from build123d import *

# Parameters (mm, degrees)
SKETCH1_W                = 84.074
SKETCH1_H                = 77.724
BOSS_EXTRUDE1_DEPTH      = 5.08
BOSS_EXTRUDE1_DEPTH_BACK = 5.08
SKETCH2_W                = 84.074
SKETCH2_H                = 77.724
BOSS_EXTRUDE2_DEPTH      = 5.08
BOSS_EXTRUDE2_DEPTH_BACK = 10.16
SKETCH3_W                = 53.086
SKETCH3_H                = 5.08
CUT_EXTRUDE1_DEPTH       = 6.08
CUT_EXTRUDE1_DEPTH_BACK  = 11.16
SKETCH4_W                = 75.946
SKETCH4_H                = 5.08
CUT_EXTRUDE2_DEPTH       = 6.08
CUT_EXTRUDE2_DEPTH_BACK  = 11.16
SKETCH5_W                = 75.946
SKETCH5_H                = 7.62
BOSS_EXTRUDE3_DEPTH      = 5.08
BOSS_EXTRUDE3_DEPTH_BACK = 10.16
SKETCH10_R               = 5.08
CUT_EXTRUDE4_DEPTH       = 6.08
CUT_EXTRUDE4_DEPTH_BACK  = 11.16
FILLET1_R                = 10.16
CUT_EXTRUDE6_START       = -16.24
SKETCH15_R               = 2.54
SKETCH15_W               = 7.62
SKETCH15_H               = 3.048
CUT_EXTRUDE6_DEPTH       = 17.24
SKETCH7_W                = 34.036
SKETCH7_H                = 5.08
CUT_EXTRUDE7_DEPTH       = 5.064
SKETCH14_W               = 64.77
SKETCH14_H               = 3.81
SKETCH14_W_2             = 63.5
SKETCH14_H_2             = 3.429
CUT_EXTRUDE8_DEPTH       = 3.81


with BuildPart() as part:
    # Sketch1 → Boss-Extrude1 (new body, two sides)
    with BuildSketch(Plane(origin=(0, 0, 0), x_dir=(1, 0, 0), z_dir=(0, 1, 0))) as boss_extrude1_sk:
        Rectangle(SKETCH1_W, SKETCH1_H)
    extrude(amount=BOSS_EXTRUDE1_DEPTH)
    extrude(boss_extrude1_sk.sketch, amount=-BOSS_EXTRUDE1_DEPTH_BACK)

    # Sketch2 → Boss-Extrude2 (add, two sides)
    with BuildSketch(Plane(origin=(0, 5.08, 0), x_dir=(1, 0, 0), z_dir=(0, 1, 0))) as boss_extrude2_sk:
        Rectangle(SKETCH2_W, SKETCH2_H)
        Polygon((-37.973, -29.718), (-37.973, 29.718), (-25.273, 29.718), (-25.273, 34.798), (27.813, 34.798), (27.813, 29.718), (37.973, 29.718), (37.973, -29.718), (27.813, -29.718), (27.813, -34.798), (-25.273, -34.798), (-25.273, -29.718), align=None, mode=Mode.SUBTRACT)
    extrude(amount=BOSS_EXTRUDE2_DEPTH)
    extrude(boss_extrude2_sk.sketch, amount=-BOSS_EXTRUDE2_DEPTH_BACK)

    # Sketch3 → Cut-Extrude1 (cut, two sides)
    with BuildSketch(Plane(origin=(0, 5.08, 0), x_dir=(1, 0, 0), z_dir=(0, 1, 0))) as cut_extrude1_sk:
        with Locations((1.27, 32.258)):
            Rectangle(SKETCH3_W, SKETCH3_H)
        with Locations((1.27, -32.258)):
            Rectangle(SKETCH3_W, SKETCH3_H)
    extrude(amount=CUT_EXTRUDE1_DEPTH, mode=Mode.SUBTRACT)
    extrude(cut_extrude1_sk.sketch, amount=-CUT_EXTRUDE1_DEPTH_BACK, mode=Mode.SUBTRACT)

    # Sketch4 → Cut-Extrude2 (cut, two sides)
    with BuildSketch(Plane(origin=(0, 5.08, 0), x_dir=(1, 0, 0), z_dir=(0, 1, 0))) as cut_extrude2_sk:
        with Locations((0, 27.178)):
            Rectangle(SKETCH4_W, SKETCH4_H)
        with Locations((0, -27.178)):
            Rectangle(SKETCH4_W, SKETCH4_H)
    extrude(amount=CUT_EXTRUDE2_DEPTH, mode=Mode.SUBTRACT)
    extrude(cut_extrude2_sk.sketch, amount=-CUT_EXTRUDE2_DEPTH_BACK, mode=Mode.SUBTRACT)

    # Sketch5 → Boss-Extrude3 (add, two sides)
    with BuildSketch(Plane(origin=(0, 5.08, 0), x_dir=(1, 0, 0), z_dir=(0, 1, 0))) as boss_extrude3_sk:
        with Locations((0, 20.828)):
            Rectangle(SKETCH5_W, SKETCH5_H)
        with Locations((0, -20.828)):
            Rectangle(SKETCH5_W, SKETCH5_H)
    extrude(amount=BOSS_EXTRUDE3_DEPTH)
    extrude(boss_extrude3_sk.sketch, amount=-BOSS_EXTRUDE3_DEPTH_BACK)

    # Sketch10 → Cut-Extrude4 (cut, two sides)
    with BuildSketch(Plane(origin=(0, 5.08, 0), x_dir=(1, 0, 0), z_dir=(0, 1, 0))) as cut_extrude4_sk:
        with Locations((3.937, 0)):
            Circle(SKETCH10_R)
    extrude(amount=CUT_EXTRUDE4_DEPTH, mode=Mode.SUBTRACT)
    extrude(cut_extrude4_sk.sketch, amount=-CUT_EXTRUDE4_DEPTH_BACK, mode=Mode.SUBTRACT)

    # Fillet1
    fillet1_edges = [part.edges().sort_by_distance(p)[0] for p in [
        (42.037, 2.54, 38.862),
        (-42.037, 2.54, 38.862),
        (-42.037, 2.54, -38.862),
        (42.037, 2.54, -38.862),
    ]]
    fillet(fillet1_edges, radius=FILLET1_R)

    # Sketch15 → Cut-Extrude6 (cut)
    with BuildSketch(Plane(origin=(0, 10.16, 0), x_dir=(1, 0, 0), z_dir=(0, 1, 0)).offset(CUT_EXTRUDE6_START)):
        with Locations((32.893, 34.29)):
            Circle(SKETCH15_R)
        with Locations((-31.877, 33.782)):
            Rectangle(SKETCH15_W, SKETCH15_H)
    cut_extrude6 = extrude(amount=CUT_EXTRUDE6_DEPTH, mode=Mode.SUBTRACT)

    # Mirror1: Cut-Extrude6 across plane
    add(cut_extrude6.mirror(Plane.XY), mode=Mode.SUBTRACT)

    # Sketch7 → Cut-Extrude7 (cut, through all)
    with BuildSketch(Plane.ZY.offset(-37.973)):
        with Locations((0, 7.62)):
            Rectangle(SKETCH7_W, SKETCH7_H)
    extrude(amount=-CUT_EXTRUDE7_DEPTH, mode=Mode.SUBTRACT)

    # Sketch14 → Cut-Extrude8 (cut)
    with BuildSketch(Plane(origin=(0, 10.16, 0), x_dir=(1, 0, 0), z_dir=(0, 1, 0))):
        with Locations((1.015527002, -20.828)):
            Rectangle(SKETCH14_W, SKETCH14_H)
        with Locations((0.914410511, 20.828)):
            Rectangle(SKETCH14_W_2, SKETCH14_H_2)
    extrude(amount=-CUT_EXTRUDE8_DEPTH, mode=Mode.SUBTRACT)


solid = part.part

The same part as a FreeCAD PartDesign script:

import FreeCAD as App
import Part
import Sketcher
from FreeCAD import Vector
Q = App.Units.Quantity


def edges_at(feature, points):
    """Names of the edges that pass closest to the given points."""
    edges = feature.Shape.Edges
    near = lambda p: min(range(len(edges)), key=lambda i: edges[i].distToShape(Part.Vertex(*p))[0])
    return sorted({f"Edge{near(p) + 1}" for p in points})

doc = App.newDocument("Part")
body = doc.addObject("PartDesign::Body", "Body")

# Sketch on XZ plane
sketch1 = body.newObject("Sketcher::SketchObject", "Sketch")
sketch1.AttachmentSupport = (doc.getObject("XZ_Plane"), [""])
sketch1.MapMode = "FlatFace"
sketch1.addGeometry(Part.LineSegment(Vector(-42, -39, 0), Vector(-42, 39, 0)), False)
sketch1.addGeometry(Part.LineSegment(Vector(-42, 39, 0), Vector(42, 39, 0)), False)
sketch1.addGeometry(Part.LineSegment(Vector(42, 39, 0), Vector(42, -39, 0)), False)
sketch1.addGeometry(Part.LineSegment(Vector(42, -39, 0), Vector(-42, -39, 0)), False)
sketch1.addConstraint(Sketcher.Constraint("Coincident", 0, 2, 1, 1))
sketch1.addConstraint(Sketcher.Constraint("Coincident", 1, 2, 2, 1))
sketch1.addConstraint(Sketcher.Constraint("Coincident", 2, 2, 3, 1))
sketch1.addConstraint(Sketcher.Constraint("Coincident", 3, 2, 0, 1))
sketch1.addConstraint(Sketcher.Constraint("Vertical", 0))
sketch1.addConstraint(Sketcher.Constraint("Horizontal", 1))
sketch1.addConstraint(Sketcher.Constraint("Vertical", 2))
sketch1.addConstraint(Sketcher.Constraint("Horizontal", 3))
sketch1.addConstraint(Sketcher.Constraint("Symmetric", 0, 2, 2, 2, -1, 1))
sketch1.addConstraint(Sketcher.Constraint("DistanceX", 1, 1, 1, 2, Q("3.31 in")))
sketch1.addConstraint(Sketcher.Constraint("DistanceY", 0, 1, 0, 2, Q("3.06 in")))
pad1 = body.newObject("PartDesign::Pad", "Pad")
pad1.Profile = sketch1
pad1.Type = "TwoLengths"
pad1.Length = Q("0.2 in")
pad1.Length2 = Q("0.2 in")
pad1.Reversed = True

# Sketch on XZ plane
sketch2 = body.newObject("Sketcher::SketchObject", "Sketch001")
sketch2.AttachmentSupport = (doc.getObject("XZ_Plane"), [""])
sketch2.MapMode = "FlatFace"
sketch2.AttachmentOffset = App.Placement(Vector(0, 0, -0.2 * 25.4), App.Rotation())
sketch2.addGeometry(Part.LineSegment(Vector(-42, -39, 0), Vector(-42, 39, 0)), False)
sketch2.addGeometry(Part.LineSegment(Vector(-42, 39, 0), Vector(42, 39, 0)), False)
sketch2.addGeometry(Part.LineSegment(Vector(42, 39, 0), Vector(42, -39, 0)), False)
sketch2.addGeometry(Part.LineSegment(Vector(42, -39, 0), Vector(-42, -39, 0)), False)
sketch2.addGeometry(Part.LineSegment(Vector(-25, 30, 0), Vector(-38, 30, 0)), False)
sketch2.addGeometry(Part.LineSegment(Vector(-38, 30, 0), Vector(-38, -30, 0)), False)
sketch2.addGeometry(Part.LineSegment(Vector(-38, -30, 0), Vector(-25, -30, 0)), False)
sketch2.addGeometry(Part.LineSegment(Vector(-25, -30, 0), Vector(-25, -35, 0)), False)
sketch2.addGeometry(Part.LineSegment(Vector(-25, -35, 0), Vector(28, -35, 0)), False)
sketch2.addGeometry(Part.LineSegment(Vector(28, -35, 0), Vector(28, -30, 0)), False)
sketch2.addGeometry(Part.LineSegment(Vector(28, -30, 0), Vector(38, -30, 0)), False)
sketch2.addGeometry(Part.LineSegment(Vector(38, -30, 0), Vector(38, 30, 0)), False)
sketch2.addGeometry(Part.LineSegment(Vector(38, 30, 0), Vector(28, 30, 0)), False)
sketch2.addGeometry(Part.LineSegment(Vector(28, 30, 0), Vector(28, 35, 0)), False)
sketch2.addGeometry(Part.LineSegment(Vector(28, 35, 0), Vector(-25, 35, 0)), False)
sketch2.addGeometry(Part.LineSegment(Vector(-25, 35, 0), Vector(-25, 30, 0)), False)
sketch2.addConstraint(Sketcher.Constraint("Coincident", 0, 2, 1, 1))
sketch2.addConstraint(Sketcher.Constraint("Coincident", 1, 2, 2, 1))
sketch2.addConstraint(Sketcher.Constraint("Coincident", 2, 2, 3, 1))
sketch2.addConstraint(Sketcher.Constraint("Coincident", 3, 2, 0, 1))
sketch2.addConstraint(Sketcher.Constraint("Coincident", 4, 2, 5, 1))
sketch2.addConstraint(Sketcher.Constraint("Coincident", 5, 2, 6, 1))
sketch2.addConstraint(Sketcher.Constraint("Coincident", 6, 2, 7, 1))
sketch2.addConstraint(Sketcher.Constraint("Coincident", 7, 2, 8, 1))
sketch2.addConstraint(Sketcher.Constraint("Coincident", 8, 2, 9, 1))
sketch2.addConstraint(Sketcher.Constraint("Coincident", 9, 2, 10, 1))
sketch2.addConstraint(Sketcher.Constraint("Coincident", 10, 2, 11, 1))
sketch2.addConstraint(Sketcher.Constraint("Coincident", 11, 2, 12, 1))
sketch2.addConstraint(Sketcher.Constraint("Coincident", 12, 2, 13, 1))
sketch2.addConstraint(Sketcher.Constraint("Coincident", 13, 2, 14, 1))
sketch2.addConstraint(Sketcher.Constraint("Coincident", 14, 2, 15, 1))
sketch2.addConstraint(Sketcher.Constraint("Coincident", 15, 2, 4, 1))
sketch2.addConstraint(Sketcher.Constraint("Vertical", 0))
sketch2.addConstraint(Sketcher.Constraint("Horizontal", 1))
sketch2.addConstraint(Sketcher.Constraint("Vertical", 2))
sketch2.addConstraint(Sketcher.Constraint("Horizontal", 3))
sketch2.addConstraint(Sketcher.Constraint("Horizontal", 4))
sketch2.addConstraint(Sketcher.Constraint("Vertical", 5))
sketch2.addConstraint(Sketcher.Constraint("Horizontal", 6))
sketch2.addConstraint(Sketcher.Constraint("Vertical", 7))
sketch2.addConstraint(Sketcher.Constraint("Horizontal", 8))
sketch2.addConstraint(Sketcher.Constraint("Vertical", 9))
sketch2.addConstraint(Sketcher.Constraint("Horizontal", 10))
sketch2.addConstraint(Sketcher.Constraint("Vertical", 11))
sketch2.addConstraint(Sketcher.Constraint("Horizontal", 12))
sketch2.addConstraint(Sketcher.Constraint("Vertical", 13))
sketch2.addConstraint(Sketcher.Constraint("Horizontal", 14))
sketch2.addConstraint(Sketcher.Constraint("Vertical", 15))
sketch2.addConstraint(Sketcher.Constraint("Symmetric", 0, 2, 2, 2, -1, 1))
sketch2.addConstraint(Sketcher.Constraint("Symmetric", 4, 2, 10, 2, -1, 1))
sketch2.addConstraint(Sketcher.Constraint("Symmetric", 9, 2, 12, 2, -1))
sketch2.addConstraint(Sketcher.Constraint("Symmetric", 7, 2, 14, 2, -1))
sketch2.addConstraint(Sketcher.Constraint("Horizontal", 6, 2, 9, 2))
sketch2.addConstraint(Sketcher.Constraint("DistanceX", 4, 2, 4, 1, Q("0.5 in")))
sketch2.addConstraint(Sketcher.Constraint("DistanceX", 10, 1, 10, 2, Q("0.4 in")))
sketch2.addConstraint(Sketcher.Constraint("DistanceY", 7, 2, 7, 1, Q("0.2 in")))
sketch2.addConstraint(Sketcher.Constraint("DistanceX", 1, 1, 1, 2, Q("3.31 in")))
sketch2.addConstraint(Sketcher.Constraint("DistanceX", 8, 1, 8, 2, Q("2.09 in")))
sketch2.addConstraint(Sketcher.Constraint("DistanceY", 0, 1, 0, 2, Q("3.06 in")))
sketch2.addConstraint(Sketcher.Constraint("DistanceY", 5, 2, 5, 1, Q("2.34 in")))
pad2 = body.newObject("PartDesign::Pad", "Pad001")
pad2.Profile = sketch2
pad2.Type = "TwoLengths"
pad2.Length = Q("0.2 in")
pad2.Length2 = Q("0.4 in")
pad2.Reversed = True

# Sketch on XZ plane
sketch3 = body.newObject("Sketcher::SketchObject", "Sketch002")
sketch3.AttachmentSupport = (doc.getObject("XZ_Plane"), [""])
sketch3.MapMode = "FlatFace"
sketch3.AttachmentOffset = App.Placement(Vector(0, 0, -0.2 * 25.4), App.Rotation())
sketch3.addGeometry(Part.LineSegment(Vector(-25, -35, 0), Vector(-25, -30, 0)), False)
sketch3.addGeometry(Part.LineSegment(Vector(-25, -30, 0), Vector(28, -30, 0)), False)
sketch3.addGeometry(Part.LineSegment(Vector(28, -30, 0), Vector(28, -35, 0)), False)
sketch3.addGeometry(Part.LineSegment(Vector(28, -35, 0), Vector(-25, -35, 0)), False)
sketch3.addGeometry(Part.LineSegment(Vector(-25, 30, 0), Vector(-25, 35, 0)), False)
sketch3.addGeometry(Part.LineSegment(Vector(-25, 35, 0), Vector(28, 35, 0)), False)
sketch3.addGeometry(Part.LineSegment(Vector(28, 35, 0), Vector(28, 30, 0)), False)
sketch3.addGeometry(Part.LineSegment(Vector(28, 30, 0), Vector(-25, 30, 0)), False)
sketch3.addConstraint(Sketcher.Constraint("Coincident", 0, 2, 1, 1))
sketch3.addConstraint(Sketcher.Constraint("Coincident", 1, 2, 2, 1))
sketch3.addConstraint(Sketcher.Constraint("Coincident", 2, 2, 3, 1))
sketch3.addConstraint(Sketcher.Constraint("Coincident", 3, 2, 0, 1))
sketch3.addConstraint(Sketcher.Constraint("Coincident", 4, 2, 5, 1))
sketch3.addConstraint(Sketcher.Constraint("Coincident", 5, 2, 6, 1))
sketch3.addConstraint(Sketcher.Constraint("Coincident", 6, 2, 7, 1))
sketch3.addConstraint(Sketcher.Constraint("Coincident", 7, 2, 4, 1))
sketch3.addConstraint(Sketcher.Constraint("Vertical", 0))
sketch3.addConstraint(Sketcher.Constraint("Horizontal", 1))
sketch3.addConstraint(Sketcher.Constraint("Vertical", 2))
sketch3.addConstraint(Sketcher.Constraint("Horizontal", 3))
sketch3.addConstraint(Sketcher.Constraint("Vertical", 4))
sketch3.addConstraint(Sketcher.Constraint("Horizontal", 5))
sketch3.addConstraint(Sketcher.Constraint("Vertical", 6))
sketch3.addConstraint(Sketcher.Constraint("Horizontal", 7))
sketch3.addConstraint(Sketcher.Constraint("Symmetric", 3, 2, 4, 2, -1))
sketch3.addConstraint(Sketcher.Constraint("Symmetric", 1, 2, 6, 2, -1))
sketch3.addConstraint(Sketcher.Constraint("DistanceY", 0, 1, 0, 2, Q("0.2 in")))
sketch3.addConstraint(Sketcher.Constraint("DistanceX", 1, 1, 1, 2, Q("2.09 in")))
sketch3.addConstraint(Sketcher.Constraint("DistanceY", 0, 2, -1, 1, Q("1.17 in")))
sketch3.addConstraint(Sketcher.Constraint("DistanceX", 0, 2, -1, 1, Q("0.995 in")))
pocket1 = body.newObject("PartDesign::Pocket", "Pocket")
pocket1.Profile = sketch3
pocket1.Type = "ThroughAll"
pocket1.Midplane = True

# Sketch on XZ plane
sketch4 = body.newObject("Sketcher::SketchObject", "Sketch003")
sketch4.AttachmentSupport = (doc.getObject("XZ_Plane"), [""])
sketch4.MapMode = "FlatFace"
sketch4.AttachmentOffset = App.Placement(Vector(0, 0, -0.2 * 25.4), App.Rotation())
sketch4.addGeometry(Part.LineSegment(Vector(-38, -30, 0), Vector(-38, -25, 0)), False)
sketch4.addGeometry(Part.LineSegment(Vector(-38, -25, 0), Vector(38, -25, 0)), False)
sketch4.addGeometry(Part.LineSegment(Vector(38, -25, 0), Vector(38, -30, 0)), False)
sketch4.addGeometry(Part.LineSegment(Vector(38, -30, 0), Vector(-38, -30, 0)), False)
sketch4.addGeometry(Part.LineSegment(Vector(-38, 25, 0), Vector(-38, 30, 0)), False)
sketch4.addGeometry(Part.LineSegment(Vector(-38, 30, 0), Vector(38, 30, 0)), False)
sketch4.addGeometry(Part.LineSegment(Vector(38, 30, 0), Vector(38, 25, 0)), False)
sketch4.addGeometry(Part.LineSegment(Vector(38, 25, 0), Vector(-38, 25, 0)), False)
sketch4.addConstraint(Sketcher.Constraint("Coincident", 0, 2, 1, 1))
sketch4.addConstraint(Sketcher.Constraint("Coincident", 1, 2, 2, 1))
sketch4.addConstraint(Sketcher.Constraint("Coincident", 2, 2, 3, 1))
sketch4.addConstraint(Sketcher.Constraint("Coincident", 3, 2, 0, 1))
sketch4.addConstraint(Sketcher.Constraint("Coincident", 4, 2, 5, 1))
sketch4.addConstraint(Sketcher.Constraint("Coincident", 5, 2, 6, 1))
sketch4.addConstraint(Sketcher.Constraint("Coincident", 6, 2, 7, 1))
sketch4.addConstraint(Sketcher.Constraint("Coincident", 7, 2, 4, 1))
sketch4.addConstraint(Sketcher.Constraint("Vertical", 0))
sketch4.addConstraint(Sketcher.Constraint("Horizontal", 1))
sketch4.addConstraint(Sketcher.Constraint("Vertical", 2))
sketch4.addConstraint(Sketcher.Constraint("Horizontal", 3))
sketch4.addConstraint(Sketcher.Constraint("Vertical", 4))
sketch4.addConstraint(Sketcher.Constraint("Horizontal", 5))
sketch4.addConstraint(Sketcher.Constraint("Vertical", 6))
sketch4.addConstraint(Sketcher.Constraint("Horizontal", 7))
sketch4.addConstraint(Sketcher.Constraint("Symmetric", 2, 2, 4, 2, -1, 1))
sketch4.addConstraint(Sketcher.Constraint("Symmetric", 0, 2, 6, 2, -1, 1))
sketch4.addConstraint(Sketcher.Constraint("Vertical", 3, 2, 4, 2))
sketch4.addConstraint(Sketcher.Constraint("DistanceY", 0, 1, 0, 2, Q("0.2 in")))
sketch4.addConstraint(Sketcher.Constraint("DistanceX", 1, 1, 1, 2, Q("2.99 in")))
sketch4.addConstraint(Sketcher.Constraint("DistanceY", 0, 2, -1, 1, Q("0.97 in")))
pocket2 = body.newObject("PartDesign::Pocket", "Pocket001")
pocket2.Profile = sketch4
pocket2.Type = "ThroughAll"
pocket2.Midplane = True

# Sketch on XZ plane
sketch5 = body.newObject("Sketcher::SketchObject", "Sketch004")
sketch5.AttachmentSupport = (doc.getObject("XZ_Plane"), [""])
sketch5.MapMode = "FlatFace"
sketch5.AttachmentOffset = App.Placement(Vector(0, 0, -0.2 * 25.4), App.Rotation())
sketch5.addGeometry(Part.LineSegment(Vector(-38, -25, 0), Vector(-38, -17, 0)), False)
sketch5.addGeometry(Part.LineSegment(Vector(-38, -17, 0), Vector(38, -17, 0)), False)
sketch5.addGeometry(Part.LineSegment(Vector(38, -17, 0), Vector(38, -25, 0)), False)
sketch5.addGeometry(Part.LineSegment(Vector(38, -25, 0), Vector(-38, -25, 0)), False)
sketch5.addGeometry(Part.LineSegment(Vector(-38, 17, 0), Vector(-38, 25, 0)), False)
sketch5.addGeometry(Part.LineSegment(Vector(-38, 25, 0), Vector(38, 25, 0)), False)
sketch5.addGeometry(Part.LineSegment(Vector(38, 25, 0), Vector(38, 17, 0)), False)
sketch5.addGeometry(Part.LineSegment(Vector(38, 17, 0), Vector(-38, 17, 0)), False)
sketch5.addConstraint(Sketcher.Constraint("Coincident", 0, 2, 1, 1))
sketch5.addConstraint(Sketcher.Constraint("Coincident", 1, 2, 2, 1))
sketch5.addConstraint(Sketcher.Constraint("Coincident", 2, 2, 3, 1))
sketch5.addConstraint(Sketcher.Constraint("Coincident", 3, 2, 0, 1))
sketch5.addConstraint(Sketcher.Constraint("Coincident", 4, 2, 5, 1))
sketch5.addConstraint(Sketcher.Constraint("Coincident", 5, 2, 6, 1))
sketch5.addConstraint(Sketcher.Constraint("Coincident", 6, 2, 7, 1))
sketch5.addConstraint(Sketcher.Constraint("Coincident", 7, 2, 4, 1))
sketch5.addConstraint(Sketcher.Constraint("Vertical", 0))
sketch5.addConstraint(Sketcher.Constraint("Horizontal", 1))
sketch5.addConstraint(Sketcher.Constraint("Vertical", 2))
sketch5.addConstraint(Sketcher.Constraint("Horizontal", 3))
sketch5.addConstraint(Sketcher.Constraint("Vertical", 4))
sketch5.addConstraint(Sketcher.Constraint("Horizontal", 5))
sketch5.addConstraint(Sketcher.Constraint("Vertical", 6))
sketch5.addConstraint(Sketcher.Constraint("Horizontal", 7))
sketch5.addConstraint(Sketcher.Constraint("Symmetric", 2, 2, 4, 2, -1, 1))
sketch5.addConstraint(Sketcher.Constraint("Symmetric", 0, 2, 6, 2, -1, 1))
sketch5.addConstraint(Sketcher.Constraint("Vertical", 3, 2, 4, 2))
sketch5.addConstraint(Sketcher.Constraint("DistanceY", 0, 1, 0, 2, Q("0.3 in")))
sketch5.addConstraint(Sketcher.Constraint("DistanceX", 1, 1, 1, 2, Q("2.99 in")))
sketch5.addConstraint(Sketcher.Constraint("DistanceY", 0, 2, -1, 1, Q("0.67 in")))
pad3 = body.newObject("PartDesign::Pad", "Pad002")
pad3.Profile = sketch5
pad3.Type = "TwoLengths"
pad3.Length = Q("0.2 in")
pad3.Length2 = Q("0.4 in")
pad3.Reversed = True

# Sketch on XZ plane
sketch6 = body.newObject("Sketcher::SketchObject", "Sketch005")
sketch6.AttachmentSupport = (doc.getObject("XZ_Plane"), [""])
sketch6.MapMode = "FlatFace"
sketch6.AttachmentOffset = App.Placement(Vector(0, 0, -0.2 * 25.4), App.Rotation())
sketch6.addGeometry(Part.Circle(Vector(4, 0, 0), Vector(0, 0, 1), 5), False)
sketch6.addConstraint(Sketcher.Constraint("PointOnObject", 0, 3, -1))
sketch6.addConstraint(Sketcher.Constraint("Diameter", 0, Q("0.4 in")))
sketch6.addConstraint(Sketcher.Constraint("DistanceX", -1, 1, 0, 3, Q("0.155 in")))
pocket3 = body.newObject("PartDesign::Pocket", "Pocket002")
pocket3.Profile = sketch6
pocket3.Type = "ThroughAll"
pocket3.Midplane = True
doc.recompute()

fillet = body.newObject("PartDesign::Fillet", "Fillet")
fillet.Base = (pocket3, edges_at(pocket3, [
    (42.037, 2.54, 38.862),
    (-42.037, 2.54, 38.862),
    (-42.037, 2.54, -38.862),
    (42.037, 2.54, -38.862),
]))
fillet.Radius = Q("0.4 in")

# Sketch on XZ plane
sketch7 = body.newObject("Sketcher::SketchObject", "Sketch006")
sketch7.AttachmentSupport = (doc.getObject("XZ_Plane"), [""])
sketch7.MapMode = "FlatFace"
sketch7.AttachmentOffset = App.Placement(Vector(0, 0, 6.08), App.Rotation())
sketch7.addGeometry(Part.Circle(Vector(32.9, -34.3, 0), Vector(0, 0, 1), 2.5), False)
sketch7.addGeometry(Part.LineSegment(Vector(-35.7, -35.3, 0), Vector(-35.7, -32.3, 0)), False)
sketch7.addGeometry(Part.LineSegment(Vector(-35.7, -32.3, 0), Vector(-28.1, -32.3, 0)), False)
sketch7.addGeometry(Part.LineSegment(Vector(-28.1, -32.3, 0), Vector(-28.1, -35.3, 0)), False)
sketch7.addGeometry(Part.LineSegment(Vector(-28.1, -35.3, 0), Vector(-35.7, -35.3, 0)), False)
sketch7.addConstraint(Sketcher.Constraint("Coincident", 1, 2, 2, 1))
sketch7.addConstraint(Sketcher.Constraint("Coincident", 2, 2, 3, 1))
sketch7.addConstraint(Sketcher.Constraint("Coincident", 3, 2, 4, 1))
sketch7.addConstraint(Sketcher.Constraint("Coincident", 4, 2, 1, 1))
sketch7.addConstraint(Sketcher.Constraint("Vertical", 1))
sketch7.addConstraint(Sketcher.Constraint("Horizontal", 2))
sketch7.addConstraint(Sketcher.Constraint("Vertical", 3))
sketch7.addConstraint(Sketcher.Constraint("Horizontal", 4))
sketch7.addConstraint(Sketcher.Constraint("Diameter", 0, Q("0.2 in")))
sketch7.addConstraint(Sketcher.Constraint("DistanceX", 2, 1, 2, 2, Q("0.3 in")))
sketch7.addConstraint(Sketcher.Constraint("DistanceY", 1, 1, 1, 2, Q("0.12 in")))
sketch7.addConstraint(Sketcher.Constraint("DistanceX", 1, 2, 0, 3, Q("2.7 in")))
sketch7.addConstraint(Sketcher.Constraint("DistanceY", 0, 3, -1, 1, Q("1.35 in")))
sketch7.addConstraint(Sketcher.Constraint("DistanceY", 1, 2, -1, 1, Q("1.27 in")))
sketch7.addConstraint(Sketcher.Constraint("DistanceX", -1, 1, 0, 3, Q("1.295 in")))
pocket4 = body.newObject("PartDesign::Pocket", "Pocket003")
pocket4.Profile = sketch7
pocket4.Length = 17.24
doc.recompute()

mirrored = body.newObject("PartDesign::Mirrored", "Mirrored")
mirrored.Originals = [pocket4]
mirrored.MirrorPlane = (doc.getObject("XY_Plane"), [""])
body.Tip = mirrored

# Sketch on YZ plane
sketch8 = body.newObject("Sketcher::SketchObject", "Sketch007")
sketch8.AttachmentSupport = (doc.getObject("YZ_Plane"), [""])
sketch8.MapMode = "FlatFace"
sketch8.AttachmentOffset = App.Placement(Vector(0, 0, 1.495 * 25.4), App.Rotation())
sketch8.addGeometry(Part.LineSegment(Vector(10, -17, 0), Vector(5, -17, 0)), False)
sketch8.addGeometry(Part.LineSegment(Vector(5, -17, 0), Vector(5, 17, 0)), False)
sketch8.addGeometry(Part.LineSegment(Vector(5, 17, 0), Vector(10, 17, 0)), False)
sketch8.addGeometry(Part.LineSegment(Vector(10, 17, 0), Vector(10, -17, 0)), False)
sketch8.addConstraint(Sketcher.Constraint("Coincident", 0, 2, 1, 1))
sketch8.addConstraint(Sketcher.Constraint("Coincident", 1, 2, 2, 1))
sketch8.addConstraint(Sketcher.Constraint("Coincident", 2, 2, 3, 1))
sketch8.addConstraint(Sketcher.Constraint("Coincident", 3, 2, 0, 1))
sketch8.addConstraint(Sketcher.Constraint("Horizontal", 0))
sketch8.addConstraint(Sketcher.Constraint("Vertical", 1))
sketch8.addConstraint(Sketcher.Constraint("Horizontal", 2))
sketch8.addConstraint(Sketcher.Constraint("Vertical", 3))
sketch8.addConstraint(Sketcher.Constraint("DistanceX", 0, 2, 0, 1, Q("0.2 in")))
sketch8.addConstraint(Sketcher.Constraint("DistanceY", 1, 1, 1, 2, Q("1.34 in")))
sketch8.addConstraint(Sketcher.Constraint("DistanceX", -1, 1, 0, 2, Q("0.2 in")))
sketch8.addConstraint(Sketcher.Constraint("DistanceY", 0, 2, -1, 1, Q("0.67 in")))
pocket5 = body.newObject("PartDesign::Pocket", "Pocket004")
pocket5.Profile = sketch8
pocket5.Type = "ThroughAll"
pocket5.Reversed = True

# Sketch on XZ plane
sketch9 = body.newObject("Sketcher::SketchObject", "Sketch008")
sketch9.AttachmentSupport = (doc.getObject("XZ_Plane"), [""])
sketch9.MapMode = "FlatFace"
sketch9.AttachmentOffset = App.Placement(Vector(0, 0, -0.4 * 25.4), App.Rotation())
sketch9.addGeometry(Part.LineSegment(Vector(-31.4, 18.9, 0), Vector(-31.4, 22.7, 0)), False)
sketch9.addGeometry(Part.LineSegment(Vector(-31.4, 22.7, 0), Vector(33.4, 22.7, 0)), False)
sketch9.addGeometry(Part.LineSegment(Vector(33.4, 22.7, 0), Vector(33.4, 18.9, 0)), False)
sketch9.addGeometry(Part.LineSegment(Vector(33.4, 18.9, 0), Vector(-31.4, 18.9, 0)), False)
sketch9.addGeometry(Part.LineSegment(Vector(-30.8, -22.5, 0), Vector(-30.8, -19.1, 0)), False)
sketch9.addGeometry(Part.LineSegment(Vector(-30.8, -19.1, 0), Vector(32.7, -19.1, 0)), False)
sketch9.addGeometry(Part.LineSegment(Vector(32.7, -19.1, 0), Vector(32.7, -22.5, 0)), False)
sketch9.addGeometry(Part.LineSegment(Vector(32.7, -22.5, 0), Vector(-30.8, -22.5, 0)), False)
sketch9.addConstraint(Sketcher.Constraint("Coincident", 0, 2, 1, 1))
sketch9.addConstraint(Sketcher.Constraint("Coincident", 1, 2, 2, 1))
sketch9.addConstraint(Sketcher.Constraint("Coincident", 2, 2, 3, 1))
sketch9.addConstraint(Sketcher.Constraint("Coincident", 3, 2, 0, 1))
sketch9.addConstraint(Sketcher.Constraint("Coincident", 4, 2, 5, 1))
sketch9.addConstraint(Sketcher.Constraint("Coincident", 5, 2, 6, 1))
sketch9.addConstraint(Sketcher.Constraint("Coincident", 6, 2, 7, 1))
sketch9.addConstraint(Sketcher.Constraint("Coincident", 7, 2, 4, 1))
sketch9.addConstraint(Sketcher.Constraint("Vertical", 0))
sketch9.addConstraint(Sketcher.Constraint("Horizontal", 1))
sketch9.addConstraint(Sketcher.Constraint("Vertical", 2))
sketch9.addConstraint(Sketcher.Constraint("Horizontal", 3))
sketch9.addConstraint(Sketcher.Constraint("Vertical", 4))
sketch9.addConstraint(Sketcher.Constraint("Horizontal", 5))
sketch9.addConstraint(Sketcher.Constraint("Vertical", 6))
sketch9.addConstraint(Sketcher.Constraint("Horizontal", 7))
sketch9.addConstraint(Sketcher.Constraint("DistanceX", 5, 1, 5, 2, Q("2.5 in")))
sketch9.addConstraint(Sketcher.Constraint("DistanceX", 1, 1, 1, 2, Q("2.55 in")))
sketch9.addConstraint(Sketcher.Constraint("DistanceY", 0, 1, 0, 2, Q("0.15 in")))
sketch9.addConstraint(Sketcher.Constraint("DistanceY", 4, 1, 4, 2, Q("0.135 in")))
sketch9.addConstraint(Sketcher.Constraint("DistanceY", -1, 1, 0, 2, Q("0.895 in")))
sketch9.addConstraint(Sketcher.Constraint("DistanceY", 4, 2, -1, 1, Q("0.7525 in")))
sketch9.addConstraint(Sketcher.Constraint("DistanceX", 4, 2, -1, 1, Q("30.835589 mm")))
sketch9.addConstraint(Sketcher.Constraint("DistanceX", 0, 2, -1, 1, Q("31.369473 mm")))
pocket6 = body.newObject("PartDesign::Pocket", "Pocket005")
pocket6.Profile = sketch9
pocket6.Length = Q("0.15 in")
pocket6.Reversed = True

doc.recompute()
